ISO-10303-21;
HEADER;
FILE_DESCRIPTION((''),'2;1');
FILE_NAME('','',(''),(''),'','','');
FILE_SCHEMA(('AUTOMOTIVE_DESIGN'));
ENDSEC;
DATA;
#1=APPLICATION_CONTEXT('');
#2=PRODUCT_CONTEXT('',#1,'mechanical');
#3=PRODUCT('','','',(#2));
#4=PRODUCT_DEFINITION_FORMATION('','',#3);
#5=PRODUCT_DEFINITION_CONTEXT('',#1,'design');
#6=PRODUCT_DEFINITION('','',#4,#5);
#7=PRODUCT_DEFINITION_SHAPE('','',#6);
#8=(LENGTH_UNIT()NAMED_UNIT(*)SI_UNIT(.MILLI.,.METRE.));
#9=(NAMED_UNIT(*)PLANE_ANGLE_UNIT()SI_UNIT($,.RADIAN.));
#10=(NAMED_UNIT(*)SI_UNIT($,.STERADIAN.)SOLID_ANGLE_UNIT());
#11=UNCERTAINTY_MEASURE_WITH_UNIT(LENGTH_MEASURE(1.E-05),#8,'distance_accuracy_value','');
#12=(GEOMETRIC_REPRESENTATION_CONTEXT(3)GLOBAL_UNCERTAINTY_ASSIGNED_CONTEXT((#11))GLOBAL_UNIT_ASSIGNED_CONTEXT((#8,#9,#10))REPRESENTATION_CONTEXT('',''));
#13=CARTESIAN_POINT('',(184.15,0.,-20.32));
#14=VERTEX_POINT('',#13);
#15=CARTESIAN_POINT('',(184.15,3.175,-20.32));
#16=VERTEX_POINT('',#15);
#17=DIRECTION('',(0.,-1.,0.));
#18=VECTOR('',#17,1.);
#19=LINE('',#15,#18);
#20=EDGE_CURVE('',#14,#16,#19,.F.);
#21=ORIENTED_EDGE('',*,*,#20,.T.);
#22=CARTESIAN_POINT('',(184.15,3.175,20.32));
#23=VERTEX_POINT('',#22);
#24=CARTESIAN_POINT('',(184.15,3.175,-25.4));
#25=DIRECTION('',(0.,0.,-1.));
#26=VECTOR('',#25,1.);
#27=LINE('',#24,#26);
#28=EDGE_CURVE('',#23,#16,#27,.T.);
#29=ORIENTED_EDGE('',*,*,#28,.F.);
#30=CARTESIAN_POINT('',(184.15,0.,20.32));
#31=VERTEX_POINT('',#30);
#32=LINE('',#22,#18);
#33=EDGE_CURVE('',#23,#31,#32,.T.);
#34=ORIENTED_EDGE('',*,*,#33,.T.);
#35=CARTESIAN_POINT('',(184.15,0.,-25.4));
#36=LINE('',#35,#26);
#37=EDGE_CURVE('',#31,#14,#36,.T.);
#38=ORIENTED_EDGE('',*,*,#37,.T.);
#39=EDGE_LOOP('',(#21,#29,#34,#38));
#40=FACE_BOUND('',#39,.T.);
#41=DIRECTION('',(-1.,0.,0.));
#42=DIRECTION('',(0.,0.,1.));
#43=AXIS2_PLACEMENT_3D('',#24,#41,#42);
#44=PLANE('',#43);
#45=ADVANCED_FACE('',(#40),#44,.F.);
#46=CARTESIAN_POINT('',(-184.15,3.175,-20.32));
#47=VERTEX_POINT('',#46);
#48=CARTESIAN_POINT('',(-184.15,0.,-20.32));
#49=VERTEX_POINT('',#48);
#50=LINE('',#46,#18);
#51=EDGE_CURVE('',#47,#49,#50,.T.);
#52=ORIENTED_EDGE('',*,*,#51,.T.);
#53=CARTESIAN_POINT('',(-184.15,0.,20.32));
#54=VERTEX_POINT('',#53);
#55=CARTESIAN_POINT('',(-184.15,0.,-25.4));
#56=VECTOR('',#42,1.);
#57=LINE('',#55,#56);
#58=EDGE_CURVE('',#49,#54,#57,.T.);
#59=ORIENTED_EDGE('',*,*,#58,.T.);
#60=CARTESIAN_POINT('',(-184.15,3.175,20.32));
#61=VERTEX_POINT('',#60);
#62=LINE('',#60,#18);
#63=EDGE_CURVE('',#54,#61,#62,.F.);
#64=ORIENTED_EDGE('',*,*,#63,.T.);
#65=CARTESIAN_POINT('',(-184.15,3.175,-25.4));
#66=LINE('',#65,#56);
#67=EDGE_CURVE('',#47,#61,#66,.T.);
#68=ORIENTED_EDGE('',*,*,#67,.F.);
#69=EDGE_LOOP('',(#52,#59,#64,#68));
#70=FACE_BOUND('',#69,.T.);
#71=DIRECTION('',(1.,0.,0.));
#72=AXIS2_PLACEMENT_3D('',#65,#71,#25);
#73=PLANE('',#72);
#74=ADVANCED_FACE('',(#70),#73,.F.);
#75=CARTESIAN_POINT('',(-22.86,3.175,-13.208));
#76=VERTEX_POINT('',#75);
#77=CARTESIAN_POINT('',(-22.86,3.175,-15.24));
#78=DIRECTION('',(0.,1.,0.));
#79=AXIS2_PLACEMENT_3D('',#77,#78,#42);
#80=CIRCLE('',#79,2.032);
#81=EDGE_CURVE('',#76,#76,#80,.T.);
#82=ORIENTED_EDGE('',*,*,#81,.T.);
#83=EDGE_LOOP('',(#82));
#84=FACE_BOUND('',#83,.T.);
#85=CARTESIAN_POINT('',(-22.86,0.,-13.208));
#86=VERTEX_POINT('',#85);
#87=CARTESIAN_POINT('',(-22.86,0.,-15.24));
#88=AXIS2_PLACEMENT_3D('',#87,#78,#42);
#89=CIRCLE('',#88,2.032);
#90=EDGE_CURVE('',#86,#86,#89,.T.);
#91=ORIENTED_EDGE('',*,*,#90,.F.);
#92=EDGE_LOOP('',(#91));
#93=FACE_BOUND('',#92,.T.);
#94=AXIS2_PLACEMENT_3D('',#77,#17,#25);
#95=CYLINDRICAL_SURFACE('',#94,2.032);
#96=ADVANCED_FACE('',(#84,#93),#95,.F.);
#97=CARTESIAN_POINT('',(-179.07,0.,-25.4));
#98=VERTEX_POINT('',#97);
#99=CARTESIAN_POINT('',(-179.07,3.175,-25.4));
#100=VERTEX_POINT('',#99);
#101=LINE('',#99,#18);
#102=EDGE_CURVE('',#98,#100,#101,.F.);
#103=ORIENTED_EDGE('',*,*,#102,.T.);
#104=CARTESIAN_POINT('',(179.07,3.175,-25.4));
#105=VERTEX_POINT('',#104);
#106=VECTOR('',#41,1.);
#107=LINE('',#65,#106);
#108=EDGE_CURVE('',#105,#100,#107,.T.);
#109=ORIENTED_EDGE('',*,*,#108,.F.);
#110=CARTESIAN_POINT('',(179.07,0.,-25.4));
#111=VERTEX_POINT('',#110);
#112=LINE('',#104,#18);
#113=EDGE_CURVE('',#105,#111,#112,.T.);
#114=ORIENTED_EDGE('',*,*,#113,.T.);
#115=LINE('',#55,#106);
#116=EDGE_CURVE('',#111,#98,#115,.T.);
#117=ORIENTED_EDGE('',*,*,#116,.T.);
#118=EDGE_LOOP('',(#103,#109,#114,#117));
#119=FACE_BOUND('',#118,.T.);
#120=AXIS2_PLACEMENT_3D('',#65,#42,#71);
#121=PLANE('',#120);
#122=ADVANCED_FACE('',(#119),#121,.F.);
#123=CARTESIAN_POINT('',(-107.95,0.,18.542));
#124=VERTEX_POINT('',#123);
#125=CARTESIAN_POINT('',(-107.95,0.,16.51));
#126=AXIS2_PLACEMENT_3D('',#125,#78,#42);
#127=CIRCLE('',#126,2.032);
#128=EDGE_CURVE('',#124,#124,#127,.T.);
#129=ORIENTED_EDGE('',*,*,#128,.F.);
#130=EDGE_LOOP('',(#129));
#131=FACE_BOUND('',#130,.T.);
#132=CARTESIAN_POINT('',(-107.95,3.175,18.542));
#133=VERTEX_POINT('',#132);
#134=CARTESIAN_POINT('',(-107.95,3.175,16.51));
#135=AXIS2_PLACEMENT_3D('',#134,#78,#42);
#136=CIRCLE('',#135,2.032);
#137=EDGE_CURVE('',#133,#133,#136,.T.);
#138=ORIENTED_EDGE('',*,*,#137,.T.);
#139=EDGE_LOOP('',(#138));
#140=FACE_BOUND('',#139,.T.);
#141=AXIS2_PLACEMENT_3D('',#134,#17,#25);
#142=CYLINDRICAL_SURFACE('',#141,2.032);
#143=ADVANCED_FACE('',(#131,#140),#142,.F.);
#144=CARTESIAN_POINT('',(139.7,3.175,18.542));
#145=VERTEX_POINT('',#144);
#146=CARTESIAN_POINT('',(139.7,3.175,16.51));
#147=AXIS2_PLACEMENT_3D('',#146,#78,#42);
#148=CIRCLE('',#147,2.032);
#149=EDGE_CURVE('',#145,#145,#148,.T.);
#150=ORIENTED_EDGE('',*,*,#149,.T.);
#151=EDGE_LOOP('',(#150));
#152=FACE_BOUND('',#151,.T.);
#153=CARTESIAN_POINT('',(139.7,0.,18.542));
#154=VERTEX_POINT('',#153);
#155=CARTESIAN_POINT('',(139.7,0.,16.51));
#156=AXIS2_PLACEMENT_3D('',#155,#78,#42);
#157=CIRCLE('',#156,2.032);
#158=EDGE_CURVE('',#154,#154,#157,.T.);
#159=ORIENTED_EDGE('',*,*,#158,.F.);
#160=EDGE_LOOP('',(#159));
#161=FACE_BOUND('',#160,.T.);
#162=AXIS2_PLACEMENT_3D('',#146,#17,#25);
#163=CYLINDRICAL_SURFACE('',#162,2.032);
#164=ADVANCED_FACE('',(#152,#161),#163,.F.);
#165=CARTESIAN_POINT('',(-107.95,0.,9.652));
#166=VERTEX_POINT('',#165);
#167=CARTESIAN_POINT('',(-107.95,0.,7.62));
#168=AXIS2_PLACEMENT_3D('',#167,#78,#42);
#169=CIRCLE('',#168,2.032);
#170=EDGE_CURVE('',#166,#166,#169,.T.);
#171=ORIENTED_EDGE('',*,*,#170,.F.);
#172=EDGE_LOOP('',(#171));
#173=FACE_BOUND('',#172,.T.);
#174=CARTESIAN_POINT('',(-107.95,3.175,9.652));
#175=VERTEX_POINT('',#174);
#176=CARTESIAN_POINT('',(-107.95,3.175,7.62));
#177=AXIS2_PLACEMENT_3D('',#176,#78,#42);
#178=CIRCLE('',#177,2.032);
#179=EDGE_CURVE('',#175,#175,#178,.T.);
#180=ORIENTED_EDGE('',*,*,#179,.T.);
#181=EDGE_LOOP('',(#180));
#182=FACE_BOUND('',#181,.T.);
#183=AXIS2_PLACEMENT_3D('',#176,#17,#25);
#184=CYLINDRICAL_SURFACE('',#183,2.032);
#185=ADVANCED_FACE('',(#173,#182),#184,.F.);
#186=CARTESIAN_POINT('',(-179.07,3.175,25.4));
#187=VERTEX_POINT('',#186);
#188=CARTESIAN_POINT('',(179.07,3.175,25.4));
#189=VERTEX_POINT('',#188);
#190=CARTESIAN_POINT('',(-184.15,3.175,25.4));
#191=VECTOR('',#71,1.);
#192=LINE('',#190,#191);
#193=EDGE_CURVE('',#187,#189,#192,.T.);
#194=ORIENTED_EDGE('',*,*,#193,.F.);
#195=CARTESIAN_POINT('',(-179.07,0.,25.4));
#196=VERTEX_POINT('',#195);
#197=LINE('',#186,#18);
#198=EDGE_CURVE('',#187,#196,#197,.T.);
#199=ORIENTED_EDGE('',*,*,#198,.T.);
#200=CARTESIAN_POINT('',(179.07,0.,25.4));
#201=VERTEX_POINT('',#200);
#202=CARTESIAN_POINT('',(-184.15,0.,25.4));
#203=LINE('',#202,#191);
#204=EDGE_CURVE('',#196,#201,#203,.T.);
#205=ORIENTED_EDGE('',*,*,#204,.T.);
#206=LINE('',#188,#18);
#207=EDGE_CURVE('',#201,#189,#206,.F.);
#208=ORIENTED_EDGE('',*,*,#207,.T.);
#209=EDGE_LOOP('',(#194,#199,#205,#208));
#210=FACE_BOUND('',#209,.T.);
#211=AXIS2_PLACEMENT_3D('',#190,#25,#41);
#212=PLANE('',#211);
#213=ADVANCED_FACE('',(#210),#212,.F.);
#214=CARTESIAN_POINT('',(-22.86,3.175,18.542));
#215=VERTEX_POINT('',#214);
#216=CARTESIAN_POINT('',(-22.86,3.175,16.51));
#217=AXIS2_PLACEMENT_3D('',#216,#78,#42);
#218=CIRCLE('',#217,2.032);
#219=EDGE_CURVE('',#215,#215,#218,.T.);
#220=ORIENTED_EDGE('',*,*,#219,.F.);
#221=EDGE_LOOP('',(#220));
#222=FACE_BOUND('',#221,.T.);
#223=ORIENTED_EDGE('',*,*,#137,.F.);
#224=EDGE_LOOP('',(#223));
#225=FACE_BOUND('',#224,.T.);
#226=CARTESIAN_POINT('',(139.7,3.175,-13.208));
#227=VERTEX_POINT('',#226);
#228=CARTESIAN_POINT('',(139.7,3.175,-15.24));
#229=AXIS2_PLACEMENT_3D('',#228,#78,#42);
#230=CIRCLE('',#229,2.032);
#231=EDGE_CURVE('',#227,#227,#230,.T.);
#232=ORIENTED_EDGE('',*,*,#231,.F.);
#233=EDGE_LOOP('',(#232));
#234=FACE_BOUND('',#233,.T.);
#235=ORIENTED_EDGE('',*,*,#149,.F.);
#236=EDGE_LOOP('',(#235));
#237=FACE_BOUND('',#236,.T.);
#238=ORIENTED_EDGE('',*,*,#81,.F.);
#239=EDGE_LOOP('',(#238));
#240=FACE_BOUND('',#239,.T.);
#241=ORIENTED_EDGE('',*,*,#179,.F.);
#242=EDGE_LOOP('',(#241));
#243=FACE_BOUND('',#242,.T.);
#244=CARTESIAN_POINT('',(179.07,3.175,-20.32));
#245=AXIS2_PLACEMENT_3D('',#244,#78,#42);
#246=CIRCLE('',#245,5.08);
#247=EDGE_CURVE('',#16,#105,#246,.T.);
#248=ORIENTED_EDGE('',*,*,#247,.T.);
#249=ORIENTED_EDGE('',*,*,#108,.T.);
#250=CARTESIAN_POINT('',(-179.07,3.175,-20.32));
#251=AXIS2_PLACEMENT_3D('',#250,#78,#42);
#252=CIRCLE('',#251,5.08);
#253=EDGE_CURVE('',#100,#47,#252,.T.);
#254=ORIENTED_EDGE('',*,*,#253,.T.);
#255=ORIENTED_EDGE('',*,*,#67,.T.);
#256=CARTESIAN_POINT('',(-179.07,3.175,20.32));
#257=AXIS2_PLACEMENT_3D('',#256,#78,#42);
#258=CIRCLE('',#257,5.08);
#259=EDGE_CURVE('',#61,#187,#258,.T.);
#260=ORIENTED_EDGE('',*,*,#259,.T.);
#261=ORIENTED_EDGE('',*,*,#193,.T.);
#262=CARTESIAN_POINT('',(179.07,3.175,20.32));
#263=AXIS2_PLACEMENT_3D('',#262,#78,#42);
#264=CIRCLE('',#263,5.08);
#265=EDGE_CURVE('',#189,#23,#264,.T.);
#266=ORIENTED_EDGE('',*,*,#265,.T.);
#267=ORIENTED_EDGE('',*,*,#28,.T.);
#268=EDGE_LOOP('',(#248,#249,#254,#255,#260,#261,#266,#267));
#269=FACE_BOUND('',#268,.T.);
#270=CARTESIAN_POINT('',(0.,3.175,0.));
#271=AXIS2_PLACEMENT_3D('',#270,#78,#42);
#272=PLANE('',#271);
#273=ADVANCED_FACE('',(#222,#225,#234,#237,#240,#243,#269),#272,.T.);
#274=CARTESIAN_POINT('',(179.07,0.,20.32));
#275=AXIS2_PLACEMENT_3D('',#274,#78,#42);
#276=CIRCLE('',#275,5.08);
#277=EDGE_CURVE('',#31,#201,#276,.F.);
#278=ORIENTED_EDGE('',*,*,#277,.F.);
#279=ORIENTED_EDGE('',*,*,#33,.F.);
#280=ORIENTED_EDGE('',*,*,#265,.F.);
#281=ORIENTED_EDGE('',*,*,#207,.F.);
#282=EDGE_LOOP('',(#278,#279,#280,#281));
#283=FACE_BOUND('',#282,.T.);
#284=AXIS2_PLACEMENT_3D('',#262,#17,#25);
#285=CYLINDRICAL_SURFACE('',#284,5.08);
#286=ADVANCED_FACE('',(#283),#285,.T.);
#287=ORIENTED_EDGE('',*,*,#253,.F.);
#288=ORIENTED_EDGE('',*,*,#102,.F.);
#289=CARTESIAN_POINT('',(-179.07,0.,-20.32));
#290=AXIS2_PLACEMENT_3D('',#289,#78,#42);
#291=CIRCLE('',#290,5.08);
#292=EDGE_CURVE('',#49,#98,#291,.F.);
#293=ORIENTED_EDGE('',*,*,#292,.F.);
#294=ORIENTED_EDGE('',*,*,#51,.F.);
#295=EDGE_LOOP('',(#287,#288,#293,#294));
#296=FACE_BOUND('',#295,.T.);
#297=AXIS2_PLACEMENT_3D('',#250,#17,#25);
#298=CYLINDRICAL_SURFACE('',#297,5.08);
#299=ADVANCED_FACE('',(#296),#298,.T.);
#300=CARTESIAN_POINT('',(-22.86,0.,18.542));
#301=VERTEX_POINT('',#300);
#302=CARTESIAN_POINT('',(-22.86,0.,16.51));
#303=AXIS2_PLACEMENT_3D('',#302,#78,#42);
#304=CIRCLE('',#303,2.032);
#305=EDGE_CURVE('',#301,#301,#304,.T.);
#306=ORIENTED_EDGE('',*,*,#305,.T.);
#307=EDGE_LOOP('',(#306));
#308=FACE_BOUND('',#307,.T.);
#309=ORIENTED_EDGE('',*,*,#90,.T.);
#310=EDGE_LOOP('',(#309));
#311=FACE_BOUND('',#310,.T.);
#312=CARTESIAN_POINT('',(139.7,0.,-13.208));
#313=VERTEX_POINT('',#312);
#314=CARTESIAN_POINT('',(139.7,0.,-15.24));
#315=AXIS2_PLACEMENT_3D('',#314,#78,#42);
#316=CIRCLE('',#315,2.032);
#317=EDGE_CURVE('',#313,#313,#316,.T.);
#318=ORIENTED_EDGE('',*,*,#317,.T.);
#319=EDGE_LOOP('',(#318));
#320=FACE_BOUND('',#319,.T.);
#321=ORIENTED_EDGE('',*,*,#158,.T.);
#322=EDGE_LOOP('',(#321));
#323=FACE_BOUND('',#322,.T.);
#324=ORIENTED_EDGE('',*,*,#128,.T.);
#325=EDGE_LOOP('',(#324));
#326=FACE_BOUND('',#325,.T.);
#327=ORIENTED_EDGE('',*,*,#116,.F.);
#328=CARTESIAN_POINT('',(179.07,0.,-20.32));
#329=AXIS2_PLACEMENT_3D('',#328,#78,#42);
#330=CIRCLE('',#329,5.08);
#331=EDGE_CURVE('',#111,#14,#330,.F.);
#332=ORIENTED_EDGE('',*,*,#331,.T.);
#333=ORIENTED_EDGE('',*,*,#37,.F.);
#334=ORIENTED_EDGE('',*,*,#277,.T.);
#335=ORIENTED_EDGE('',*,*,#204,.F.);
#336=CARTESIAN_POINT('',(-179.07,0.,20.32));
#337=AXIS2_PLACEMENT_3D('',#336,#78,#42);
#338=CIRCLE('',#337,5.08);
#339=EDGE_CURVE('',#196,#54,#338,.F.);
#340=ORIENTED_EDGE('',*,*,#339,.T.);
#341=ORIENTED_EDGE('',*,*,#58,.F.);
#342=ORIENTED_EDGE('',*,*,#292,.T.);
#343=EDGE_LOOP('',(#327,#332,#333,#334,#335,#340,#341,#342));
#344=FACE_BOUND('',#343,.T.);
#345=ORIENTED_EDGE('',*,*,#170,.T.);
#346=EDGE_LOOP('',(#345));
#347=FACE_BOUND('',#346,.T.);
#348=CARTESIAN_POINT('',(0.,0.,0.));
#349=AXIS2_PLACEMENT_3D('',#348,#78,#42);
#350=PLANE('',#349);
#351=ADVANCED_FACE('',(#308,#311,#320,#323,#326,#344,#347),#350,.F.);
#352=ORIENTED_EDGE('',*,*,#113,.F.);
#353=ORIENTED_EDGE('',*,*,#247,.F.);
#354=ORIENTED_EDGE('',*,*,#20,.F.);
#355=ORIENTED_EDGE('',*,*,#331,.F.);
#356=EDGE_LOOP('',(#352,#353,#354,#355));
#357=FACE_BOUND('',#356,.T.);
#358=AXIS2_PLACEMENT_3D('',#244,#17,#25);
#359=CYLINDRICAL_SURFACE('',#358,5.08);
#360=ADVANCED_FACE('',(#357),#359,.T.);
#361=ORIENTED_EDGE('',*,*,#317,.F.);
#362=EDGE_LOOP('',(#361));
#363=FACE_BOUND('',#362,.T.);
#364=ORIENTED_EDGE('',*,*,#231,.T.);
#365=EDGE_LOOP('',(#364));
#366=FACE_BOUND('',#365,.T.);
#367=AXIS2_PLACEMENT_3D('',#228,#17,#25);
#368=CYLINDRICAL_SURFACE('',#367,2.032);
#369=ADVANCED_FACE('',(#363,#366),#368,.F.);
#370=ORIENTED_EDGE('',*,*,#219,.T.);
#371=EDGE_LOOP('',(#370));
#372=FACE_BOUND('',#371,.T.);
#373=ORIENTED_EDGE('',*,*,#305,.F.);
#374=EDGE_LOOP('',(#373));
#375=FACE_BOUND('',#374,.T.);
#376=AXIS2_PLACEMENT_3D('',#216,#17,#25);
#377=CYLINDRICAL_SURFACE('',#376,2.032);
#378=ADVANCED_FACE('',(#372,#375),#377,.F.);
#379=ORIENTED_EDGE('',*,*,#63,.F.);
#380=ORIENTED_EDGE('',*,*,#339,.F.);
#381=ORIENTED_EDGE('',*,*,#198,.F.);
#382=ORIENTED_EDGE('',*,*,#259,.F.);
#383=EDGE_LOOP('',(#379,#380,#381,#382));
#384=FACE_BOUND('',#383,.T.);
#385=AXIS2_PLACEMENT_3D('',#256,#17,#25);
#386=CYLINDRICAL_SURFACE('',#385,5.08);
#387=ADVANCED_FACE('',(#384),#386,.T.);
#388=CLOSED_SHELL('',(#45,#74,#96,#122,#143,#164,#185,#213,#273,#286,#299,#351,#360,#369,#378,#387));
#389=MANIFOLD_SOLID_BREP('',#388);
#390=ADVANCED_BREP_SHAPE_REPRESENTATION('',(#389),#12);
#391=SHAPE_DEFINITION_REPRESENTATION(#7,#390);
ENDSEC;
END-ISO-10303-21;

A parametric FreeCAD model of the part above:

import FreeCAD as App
import Part
import Sketcher
from FreeCAD import Vector
Q = App.Units.Quantity


def edges_at(feature, points):
    """Names of the edges that pass closest to the given points."""
    edges = feature.Shape.Edges
    near = lambda p: min(range(len(edges)), key=lambda i: edges[i].distToShape(Part.Vertex(*p))[0])
    return sorted({f"Edge{near(p) + 1}" for p in points})


def add_polygon(sketch, points):
    """Adds a closed chain of lines whose ends are joined by coincident constraints."""
    first, n = sketch.GeometryCount, len(points)
    for a, b in zip(points, points[1:] + points[:1]):
        sketch.addGeometry(Part.LineSegment(App.Vector(*a, 0), App.Vector(*b, 0)), False)
    for i in range(n):
        sketch.addConstraint(Sketcher.Constraint("Coincident", first + i, 2, first + (i + 1) % n, 1))

doc = App.newDocument("Part")
params = doc.addObject("Spreadsheet::Sheet", "Params")
for row, (alias, value) in enumerate([
    ("sketch1_diameter", "0.16 in"),
    ("sketch1_height", "2 in"),
    ("sketch1_width", "14.5 in"),
    ("pad1_length", "0.125 in"),
    ("fillet_radius", "0.2 in"),
], start=1):
    params.set(f"A{row}", alias)
    params.set(f"B{row}", "=" + value)
    params.setAlias(f"B{row}", alias)

body = doc.addObject("PartDesign::Body", "Body")

# Sketch on XZ plane
sketch1 = body.newObject("Sketcher::SketchObject", "Sketch")
sketch1.AttachmentSupport = (doc.getObject("XZ_Plane"), [""])
sketch1.MapMode = "FlatFace"
add_polygon(sketch1, [(-184.15, -25.4), (-184.15, 25.4), (184.15, 25.4), (184.15, -25.4)])  # lines 0-3
sketch1.addGeometry(Part.Circle(Vector(-107.95, 16.51, 0), Vector(0, 0, 1), 2.032), False)  # 4
sketch1.addGeometry(Part.Circle(Vector(-22.86, 16.51, 0), Vector(0, 0, 1), 2.032), False)  # 5
sketch1.addGeometry(Part.Circle(Vector(-107.95, 7.62, 0), Vector(0, 0, 1), 2.032), False)  # 6
sketch1.addGeometry(Part.Circle(Vector(139.7, 16.51, 0), Vector(0, 0, 1), 2.032), False)  # 7
sketch1.addGeometry(Part.Circle(Vector(-22.86, -15.24, 0), Vector(0, 0, 1), 2.032), False)  # 8
sketch1.addGeometry(Part.Circle(Vector(139.7, -15.24, 0), Vector(0, 0, 1), 2.032), False)  # 9
sketch1.addConstraint(Sketcher.Constraint("Vertical", 0))
sketch1.addConstraint(Sketcher.Constraint("Horizontal", 1))
sketch1.addConstraint(Sketcher.Constraint("Vertical", 2))
sketch1.addConstraint(Sketcher.Constraint("Horizontal", 3))
sketch1.addConstraint(Sketcher.Constraint("Equal", 4, 5))
sketch1.addConstraint(Sketcher.Constraint("Equal", 5, 6))
sketch1.addConstraint(Sketcher.Constraint("Equal", 6, 7))
sketch1.addConstraint(Sketcher.Constraint("Equal", 7, 8))
sketch1.addConstraint(Sketcher.Constraint("Equal", 8, 9))
sketch1.addConstraint(Sketcher.Constraint("Symmetric", 0, 2, 2, 2, -1, 1))
sketch1.addConstraint(Sketcher.Constraint("Horizontal", 4, 3, 5, 3))
sketch1.addConstraint(Sketcher.Constraint("Horizontal", 5, 3, 7, 3))
sketch1.addConstraint(Sketcher.Constraint("Horizontal", 8, 3, 9, 3))
sketch1.addConstraint(Sketcher.Constraint("Vertical", 4, 3, 6, 3))
sketch1.addConstraint(Sketcher.Constraint("Vertical", 5, 3, 8, 3))
sketch1.addConstraint(Sketcher.Constraint("Vertical", 7, 3, 9, 3))
sketch1.addConstraint(Sketcher.Constraint("Diameter", 4, Q("0.16 in")))
sketch1.addConstraint(Sketcher.Constraint("DistanceY", 0, 1, 0, 2, Q("2 in")))
sketch1.addConstraint(Sketcher.Constraint("DistanceX", 1, 1, 1, 2, Q("14.5 in")))
sketch1.addConstraint(Sketcher.Constraint("DistanceX", 0, 2, 4, 3, Q("3 in")))
sketch1.addConstraint(Sketcher.Constraint("DistanceX", 5, 3, -1, 1, Q("0.9 in")))
sketch1.addConstraint(Sketcher.Constraint("DistanceY", -1, 1, 6, 3, Q("0.3 in")))
sketch1.addConstraint(Sketcher.Constraint("DistanceX", -1, 1, 7, 3, Q("5.5 in")))
sketch1.addConstraint(Sketcher.Constraint("DistanceY", 8, 3, -1, 1, Q("0.6 in")))
sketch1.addConstraint(Sketcher.Constraint("DistanceY", -1, 1, 4, 3, Q("0.65 in")))
sketch1.setExpression("Constraints[20]", "Params.sketch1_diameter")
sketch1.setExpression("Constraints[21]", "Params.sketch1_height")
sketch1.setExpression("Constraints[22]", "Params.sketch1_width")
pad1 = body.newObject("PartDesign::Pad", "Pad")
pad1.Profile = sketch1
pad1.setExpression("Length", "Params.pad1_length")
pad1.Reversed = True
doc.recompute()

fillet = body.newObject("PartDesign::Fillet", "Fillet")
fillet.Base = (pad1, edges_at(pad1, [
    (184.15, 1.587, 25.4),
    (-184.15, 1.587, 25.4),
    (-184.15, 1.587, -25.4),
    (184.15, 1.587, -25.4),
]))
fillet.setExpression("Radius", "Params.fillet_radius")

doc.recompute()
